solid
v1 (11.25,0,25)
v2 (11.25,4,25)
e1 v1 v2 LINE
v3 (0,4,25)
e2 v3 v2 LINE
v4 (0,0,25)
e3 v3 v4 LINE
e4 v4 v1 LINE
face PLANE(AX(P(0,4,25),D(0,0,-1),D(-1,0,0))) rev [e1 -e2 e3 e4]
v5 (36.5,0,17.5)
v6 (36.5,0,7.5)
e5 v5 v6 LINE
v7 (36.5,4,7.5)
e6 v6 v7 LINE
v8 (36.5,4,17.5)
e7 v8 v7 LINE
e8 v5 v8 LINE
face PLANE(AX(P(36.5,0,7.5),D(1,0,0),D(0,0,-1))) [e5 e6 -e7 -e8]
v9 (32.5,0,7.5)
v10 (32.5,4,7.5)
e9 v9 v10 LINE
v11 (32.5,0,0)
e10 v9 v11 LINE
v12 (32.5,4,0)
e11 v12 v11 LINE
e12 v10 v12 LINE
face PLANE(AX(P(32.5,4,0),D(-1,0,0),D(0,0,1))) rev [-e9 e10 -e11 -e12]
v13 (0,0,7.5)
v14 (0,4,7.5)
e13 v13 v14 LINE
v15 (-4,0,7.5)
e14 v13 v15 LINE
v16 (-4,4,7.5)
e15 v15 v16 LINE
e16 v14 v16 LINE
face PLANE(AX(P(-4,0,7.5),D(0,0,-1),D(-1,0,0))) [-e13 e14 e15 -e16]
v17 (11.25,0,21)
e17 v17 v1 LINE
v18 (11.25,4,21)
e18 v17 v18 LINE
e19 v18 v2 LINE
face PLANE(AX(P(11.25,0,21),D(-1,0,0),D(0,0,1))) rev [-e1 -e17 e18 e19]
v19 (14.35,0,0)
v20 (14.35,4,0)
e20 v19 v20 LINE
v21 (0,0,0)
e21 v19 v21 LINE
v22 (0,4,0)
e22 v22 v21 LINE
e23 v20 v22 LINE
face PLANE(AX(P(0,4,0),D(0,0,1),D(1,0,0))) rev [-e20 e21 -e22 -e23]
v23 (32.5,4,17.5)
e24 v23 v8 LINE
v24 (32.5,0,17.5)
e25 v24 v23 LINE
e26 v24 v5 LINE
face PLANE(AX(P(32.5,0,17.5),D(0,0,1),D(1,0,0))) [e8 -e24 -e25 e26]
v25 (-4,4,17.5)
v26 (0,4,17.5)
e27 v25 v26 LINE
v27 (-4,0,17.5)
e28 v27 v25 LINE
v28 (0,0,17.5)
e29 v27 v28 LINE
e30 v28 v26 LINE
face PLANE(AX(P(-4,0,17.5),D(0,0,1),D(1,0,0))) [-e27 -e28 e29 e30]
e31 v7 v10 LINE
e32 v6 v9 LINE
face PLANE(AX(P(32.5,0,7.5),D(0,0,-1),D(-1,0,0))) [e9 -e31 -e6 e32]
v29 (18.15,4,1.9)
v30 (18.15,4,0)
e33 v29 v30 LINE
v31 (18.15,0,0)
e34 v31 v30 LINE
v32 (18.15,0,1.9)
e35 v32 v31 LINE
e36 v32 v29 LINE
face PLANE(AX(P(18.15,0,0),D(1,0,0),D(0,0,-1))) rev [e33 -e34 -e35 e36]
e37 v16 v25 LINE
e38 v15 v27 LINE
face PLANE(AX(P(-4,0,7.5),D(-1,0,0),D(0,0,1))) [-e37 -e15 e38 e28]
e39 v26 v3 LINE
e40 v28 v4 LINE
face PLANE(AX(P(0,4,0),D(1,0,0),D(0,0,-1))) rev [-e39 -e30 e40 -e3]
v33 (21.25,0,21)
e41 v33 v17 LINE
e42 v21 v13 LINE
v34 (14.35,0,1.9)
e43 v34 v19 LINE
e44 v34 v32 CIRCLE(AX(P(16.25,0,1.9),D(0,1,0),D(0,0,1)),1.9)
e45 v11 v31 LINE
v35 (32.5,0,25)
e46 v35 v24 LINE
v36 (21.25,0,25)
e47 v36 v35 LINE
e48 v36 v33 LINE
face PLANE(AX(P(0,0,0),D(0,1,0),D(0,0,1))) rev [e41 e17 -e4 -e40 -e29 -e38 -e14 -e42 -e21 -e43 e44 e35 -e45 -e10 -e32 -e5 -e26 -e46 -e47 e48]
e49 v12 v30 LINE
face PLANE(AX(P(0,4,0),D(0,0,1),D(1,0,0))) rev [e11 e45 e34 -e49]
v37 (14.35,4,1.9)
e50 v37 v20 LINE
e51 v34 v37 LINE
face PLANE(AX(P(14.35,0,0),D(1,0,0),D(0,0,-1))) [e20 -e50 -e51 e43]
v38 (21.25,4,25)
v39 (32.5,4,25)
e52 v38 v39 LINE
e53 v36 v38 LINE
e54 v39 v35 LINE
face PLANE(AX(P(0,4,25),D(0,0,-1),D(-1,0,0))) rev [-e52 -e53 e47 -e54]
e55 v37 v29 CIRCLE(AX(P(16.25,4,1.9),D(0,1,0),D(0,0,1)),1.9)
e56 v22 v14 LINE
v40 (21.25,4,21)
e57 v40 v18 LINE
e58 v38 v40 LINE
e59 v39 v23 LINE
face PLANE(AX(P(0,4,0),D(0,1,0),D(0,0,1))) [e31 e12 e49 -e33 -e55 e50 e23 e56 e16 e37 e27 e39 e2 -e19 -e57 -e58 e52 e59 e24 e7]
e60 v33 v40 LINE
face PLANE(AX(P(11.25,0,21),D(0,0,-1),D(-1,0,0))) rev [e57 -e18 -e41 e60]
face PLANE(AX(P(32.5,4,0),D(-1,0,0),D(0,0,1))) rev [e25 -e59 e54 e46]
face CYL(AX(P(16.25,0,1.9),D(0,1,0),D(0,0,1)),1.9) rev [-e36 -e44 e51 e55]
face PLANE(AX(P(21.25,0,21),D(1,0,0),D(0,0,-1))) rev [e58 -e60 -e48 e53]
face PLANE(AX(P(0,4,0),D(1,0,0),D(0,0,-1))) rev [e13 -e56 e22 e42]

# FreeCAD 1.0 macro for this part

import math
import FreeCAD as App
import Part
import Sketcher
from FreeCAD import Vector
Q = App.Units.Quantity

doc = App.newDocument("Part")
params = doc.addObject("Spreadsheet::Sheet", "Params")
for row, (alias, value) in enumerate([
    ("sketch1_height", "25 mm"),
    ("sketch1_width", "32.5 mm"),
    ("pad1_length", "4 mm"),
    ("sketch2_radius", "1.9 mm"),
    ("sketch2_height", "1.9 mm"),
    ("sketch3_width", "4 mm"),
    ("sketch3_height", "10 mm"),
    ("sketch4_width", "10 mm"),
    ("sketch4_height", "4 mm"),
], start=1):
    params.set(f"A{row}", alias)
    params.set(f"B{row}", "=" + value)
    params.setAlias(f"B{row}", alias)

body = doc.addObject("PartDesign::Body", "Body")

# Sketch on XZ plane
sketch1 = body.newObject("Sketcher::SketchObject", "Sketch")
sketch1.AttachmentSupport = (doc.getObject("XZ_Plane"), [""])
sketch1.MapMode = "FlatFace"
sketch1.addGeometry([
    Part.LineSegment(Vector(0, 0, 0), Vector(0, 25, 0)),
    Part.LineSegment(Vector(0, 25, 0), Vector(32, 25, 0)),
    Part.LineSegment(Vector(32, 25, 0), Vector(32, 0, 0)),
    Part.LineSegment(Vector(32, 0, 0), Vector(0, 0, 0)),
], False)
sketch1.addConstraint([
    Sketcher.Constraint("Coincident", 0, 2, 1, 1),
    Sketcher.Constraint("Coincident", 1, 2, 2, 1),
    Sketcher.Constraint("Coincident", 2, 2, 3, 1),
    Sketcher.Constraint("Coincident", 3, 2, 0, 1),
    Sketcher.Constraint("Vertical", 0),
    Sketcher.Constraint("Horizontal", 1),
    Sketcher.Constraint("Vertical", 2),
    Sketcher.Constraint("Horizontal", 3),
    Sketcher.Constraint("Coincident", 3, 2, -1, 1),
    Sketcher.Constraint("DistanceY", 0, 1, 0, 2, Q("25 mm")),
    Sketcher.Constraint("DistanceX", 1, 1, 1, 2, Q("32.5 mm")),
])
sketch1.setExpression("Constraints[9]", "Params.sketch1_height")
sketch1.setExpression("Constraints[10]", "Params.sketch1_width")
pad1 = body.newObject("PartDesign::Pad", "Pad")
pad1.Profile = sketch1
pad1.setExpression("Length", "Params.pad1_length")
pad1.Reversed = True

# Sketch on XZ plane
sketch2 = body.newObject("Sketcher::SketchObject", "Sketch001")
sketch2.AttachmentSupport = (doc.getObject("XZ_Plane"), [""])
sketch2.MapMode = "FlatFace"
sketch2.AttachmentOffset = App.Placement(Vector(0, 0, -4), App.Rotation())
sketch2.addGeometry([
    Part.ArcOfCircle(Part.Circle(Vector(16.2, 1.9, 0), Vector(0, 0, 1), 1.9), math.radians(0), math.radians(180)),
    Part.LineSegment(Vector(18.1, 1.9, 0), Vector(18.1, 0, 0)),
    Part.LineSegment(Vector(18.1, 0, 0), Vector(14.3, 0, 0)),
    Part.LineSegment(Vector(14.3, 0, 0), Vector(14.3, 1.9, 0)),
], False)
sketch2.addConstraint([
    Sketcher.Constraint("Tangent", 0, 1, 1, 1),
    Sketcher.Constraint("Coincident", 1, 2, 2, 1),
    Sketcher.Constraint("Coincident", 2, 2, 3, 1),
    Sketcher.Constraint("Tangent", 3, 2, 0, 2),
    Sketcher.Constraint("Vertical", 1),
    Sketcher.Constraint("Horizontal", 2),
    Sketcher.Constraint("Vertical", 3),
    Sketcher.Constraint("PointOnObject", 1, 2, -1),
    Sketcher.Constraint("Radius", 0, Q("1.9 mm")),
    Sketcher.Constraint("DistanceY", 1, 2, 1, 1, Q("1.9 mm")),
    Sketcher.Constraint("DistanceX", -1, 1, 0, 3, Q("16.25 mm")),
])
sketch2.setExpression("Constraints[8]", "Params.sketch2_radius")
sketch2.setExpression("Constraints[9]", "Params.sketch2_height")
pocket1 = body.newObject("PartDesign::Pocket", "Pocket")
pocket1.Profile = sketch2
pocket1.Type = "ThroughAll"
pocket1.Reversed = True

# Sketch on XZ plane
sketch3 = body.newObject("Sketcher::SketchObject", "Sketch002")
sketch3.AttachmentSupport = (doc.getObject("XZ_Plane"), [""])
sketch3.MapMode = "FlatFace"
sketch3.AttachmentOffset = App.Placement(Vector(0, 0, -4), App.Rotation())
sketch3.addGeometry([
    Part.LineSegment(Vector(-4, 7.5, 0), Vector(-4, 17.5, 0)),  # 0
    Part.LineSegment(Vector(-4, 17.5, 0), Vector(0, 17.5, 0)),  # 1
    Part.LineSegment(Vector(0, 17.5, 0), Vector(0, 7.5, 0)),  # 2
    Part.LineSegment(Vector(0, 7.5, 0), Vector(-4, 7.5, 0)),  # 3
    Part.LineSegment(Vector(32.5, 7.5, 0), Vector(32.5, 17.5, 0)),  # 4
    Part.LineSegment(Vector(32.5, 17.5, 0), Vector(36.5, 17.5, 0)),  # 5
    Part.LineSegment(Vector(36.5, 17.5, 0), Vector(36.5, 7.5, 0)),  # 6
    Part.LineSegment(Vector(36.5, 7.5, 0), Vector(32.5, 7.5, 0)),  # 7
], False)
sketch3.addConstraint([
    Sketcher.Constraint("Coincident", 0, 2, 1, 1),
    Sketcher.Constraint("Coincident", 1, 2, 2, 1),
    Sketcher.Constraint("Coincident", 2, 2, 3, 1),
    Sketcher.Constraint("Coincident", 3, 2, 0, 1),
    Sketcher.Constraint("Coincident", 4, 2, 5, 1),
    Sketcher.Constraint("Coincident", 5, 2, 6, 1),
    Sketcher.Constraint("Coincident", 6, 2, 7, 1),
    Sketcher.Constraint("Coincident", 7, 2, 4, 1),
    Sketcher.Constraint("Vertical", 0),
    Sketcher.Constraint("Horizontal", 1),
    Sketcher.Constraint("Vertical", 2),
    Sketcher.Constraint("Horizontal", 3),
    Sketcher.Constraint("Vertical", 4),
    Sketcher.Constraint("Horizontal", 5),
    Sketcher.Constraint("Vertical", 6),
    Sketcher.Constraint("Horizontal", 7),
    Sketcher.Constraint("PointOnObject", 1, 2, -2),
    Sketcher.Constraint("Horizontal", 1, 2, 4, 2),
    Sketcher.Constraint("Horizontal", 3, 2, 6, 2),
    Sketcher.Constraint("Equal", 3, 5),
    Sketcher.Constraint("DistanceX", 1, 1, 1, 2, Q("4 mm")),
    Sketcher.Constraint("DistanceY", 0, 1, 0, 2, Q("10 mm")),
    Sketcher.Constraint("DistanceY", -1, 1, 0, 2, Q("17.5 mm")),
    Sketcher.Constraint("DistanceX", -1, 1, 4, 2, Q("32.5 mm")),
])
sketch3.setExpression("Constraints[20]", "Params.sketch3_width")
sketch3.setExpression("Constraints[21]", "Params.sketch3_height")
pad2 = body.newObject("PartDesign::Pad", "Pad001")
pad2.Profile = sketch3
pad2.Type = "UpToLast"

# Sketch on XZ plane
sketch4 = body.newObject("Sketcher::SketchObject", "Sketch003")
sketch4.AttachmentSupport = (doc.getObject("XZ_Plane"), [""])
sketch4.MapMode = "FlatFace"
sketch4.AttachmentOffset = App.Placement(Vector(0, 0, -4), App.Rotation())
sketch4.addGeometry([
    Part.LineSegment(Vector(11.2, 21, 0), Vector(11.2, 25, 0)),
    Part.LineSegment(Vector(11.2, 25, 0), Vector(21.2, 25, 0)),
    Part.LineSegment(Vector(21.2, 25, 0), Vector(21.2, 21, 0)),
    Part.LineSegment(Vector(21.2, 21, 0), Vector(11.2, 21, 0)),
], False)
sketch4.addConstraint([
    Sketcher.Constraint("Coincident", 0, 2, 1, 1),
    Sketcher.Constraint("Coincident", 1, 2, 2, 1),
    Sketcher.Constraint("Coincident", 2, 2, 3, 1),
    Sketcher.Constraint("Coincident", 3, 2, 0, 1),
    Sketcher.Constraint("Vertical", 0),
    Sketcher.Constraint("Horizontal", 1),
    Sketcher.Constraint("Vertical", 2),
    Sketcher.Constraint("Horizontal", 3),
    Sketcher.Constraint("DistanceX", 1, 1, 1, 2, Q("10 mm")),
    Sketcher.Constraint("DistanceY", 0, 1, 0, 2, Q("4 mm")),
    Sketcher.Constraint("DistanceY", -1, 1, 0, 2, Q("25 mm")),
    Sketcher.Constraint("DistanceX", -1, 1, 0, 2, Q("11.25 mm")),
])
sketch4.setExpression("Constraints[8]", "Params.sketch4_width")
sketch4.setExpression("Constraints[9]", "Params.sketch4_height")
pocket2 = body.newObject("PartDesign::Pocket", "Pocket001")
pocket2.Profile = sketch4
pocket2.Type = "ThroughAll"
pocket2.Reversed = True

doc.recompute()
